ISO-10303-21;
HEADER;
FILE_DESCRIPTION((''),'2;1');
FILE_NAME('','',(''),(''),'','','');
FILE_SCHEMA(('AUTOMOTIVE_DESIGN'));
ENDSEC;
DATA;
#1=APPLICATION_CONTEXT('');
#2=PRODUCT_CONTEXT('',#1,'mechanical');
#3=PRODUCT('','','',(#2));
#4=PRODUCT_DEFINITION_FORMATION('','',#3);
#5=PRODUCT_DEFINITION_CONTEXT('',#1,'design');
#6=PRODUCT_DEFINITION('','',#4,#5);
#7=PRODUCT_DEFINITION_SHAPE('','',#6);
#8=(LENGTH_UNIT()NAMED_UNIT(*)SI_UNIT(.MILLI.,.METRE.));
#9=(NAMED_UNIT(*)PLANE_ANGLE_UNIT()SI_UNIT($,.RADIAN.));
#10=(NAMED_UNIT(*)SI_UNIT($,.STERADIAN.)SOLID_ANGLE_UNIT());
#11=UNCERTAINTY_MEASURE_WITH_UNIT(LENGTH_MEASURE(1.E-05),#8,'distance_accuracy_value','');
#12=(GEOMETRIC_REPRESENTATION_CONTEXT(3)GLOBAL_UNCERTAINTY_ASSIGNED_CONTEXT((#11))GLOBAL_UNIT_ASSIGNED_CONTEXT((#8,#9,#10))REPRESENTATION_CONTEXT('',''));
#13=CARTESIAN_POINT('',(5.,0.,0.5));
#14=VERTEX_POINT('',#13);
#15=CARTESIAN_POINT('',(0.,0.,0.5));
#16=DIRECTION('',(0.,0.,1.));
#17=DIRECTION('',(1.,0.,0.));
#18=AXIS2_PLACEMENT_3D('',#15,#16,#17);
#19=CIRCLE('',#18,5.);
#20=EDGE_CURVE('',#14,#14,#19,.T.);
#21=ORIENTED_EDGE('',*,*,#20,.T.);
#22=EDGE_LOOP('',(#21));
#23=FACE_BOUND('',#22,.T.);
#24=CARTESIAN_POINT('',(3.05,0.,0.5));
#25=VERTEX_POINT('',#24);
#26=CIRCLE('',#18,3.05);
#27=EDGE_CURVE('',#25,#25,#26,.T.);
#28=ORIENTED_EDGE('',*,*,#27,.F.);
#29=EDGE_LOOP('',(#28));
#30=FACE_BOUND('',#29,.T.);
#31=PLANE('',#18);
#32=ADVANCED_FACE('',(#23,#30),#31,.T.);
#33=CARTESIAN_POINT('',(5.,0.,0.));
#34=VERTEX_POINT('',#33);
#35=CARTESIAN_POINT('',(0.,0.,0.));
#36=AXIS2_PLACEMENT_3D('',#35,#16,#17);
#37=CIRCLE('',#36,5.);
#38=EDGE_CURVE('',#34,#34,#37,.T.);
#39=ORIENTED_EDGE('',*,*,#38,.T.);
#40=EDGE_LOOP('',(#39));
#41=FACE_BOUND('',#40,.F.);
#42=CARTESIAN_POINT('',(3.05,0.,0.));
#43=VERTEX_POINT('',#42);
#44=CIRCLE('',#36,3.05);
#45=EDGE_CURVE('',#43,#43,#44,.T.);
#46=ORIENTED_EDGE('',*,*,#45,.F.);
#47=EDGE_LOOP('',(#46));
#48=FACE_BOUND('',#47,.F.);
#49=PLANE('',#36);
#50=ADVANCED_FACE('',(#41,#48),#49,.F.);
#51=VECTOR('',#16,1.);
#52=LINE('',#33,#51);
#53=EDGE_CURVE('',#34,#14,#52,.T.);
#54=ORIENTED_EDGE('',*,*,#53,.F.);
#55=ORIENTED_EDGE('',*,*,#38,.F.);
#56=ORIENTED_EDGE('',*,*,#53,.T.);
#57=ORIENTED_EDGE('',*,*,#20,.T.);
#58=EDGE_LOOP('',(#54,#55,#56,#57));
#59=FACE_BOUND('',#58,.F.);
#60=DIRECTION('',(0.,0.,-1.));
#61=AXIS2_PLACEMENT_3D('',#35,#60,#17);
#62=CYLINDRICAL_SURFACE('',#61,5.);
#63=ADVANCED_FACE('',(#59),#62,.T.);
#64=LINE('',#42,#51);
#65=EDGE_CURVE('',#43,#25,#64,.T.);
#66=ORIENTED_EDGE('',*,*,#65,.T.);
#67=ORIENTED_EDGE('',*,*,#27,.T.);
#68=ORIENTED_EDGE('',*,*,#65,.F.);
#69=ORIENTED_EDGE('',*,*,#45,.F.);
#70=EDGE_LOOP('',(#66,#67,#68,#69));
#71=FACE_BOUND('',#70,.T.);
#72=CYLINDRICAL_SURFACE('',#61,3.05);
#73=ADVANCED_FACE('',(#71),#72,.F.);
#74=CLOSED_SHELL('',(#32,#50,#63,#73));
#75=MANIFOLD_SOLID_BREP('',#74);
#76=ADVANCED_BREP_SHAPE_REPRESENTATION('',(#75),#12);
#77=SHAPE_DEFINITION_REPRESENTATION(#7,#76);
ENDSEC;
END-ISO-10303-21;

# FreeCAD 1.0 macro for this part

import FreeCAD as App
import Part
import Sketcher

V = App.Vector
Q = App.Units.Quantity

doc = App.newDocument("Part")
body = doc.addObject("PartDesign::Body", "Body")

# Sketch on XY plane
sketch1 = doc.addObject("Sketcher::SketchObject", "Sketch")
body.addObject(sketch1)
sketch1.AttachmentSupport = (doc.XY_Plane, [""])
sketch1.MapMode = "FlatFace"
sketch1.addGeometry([
    Part.Circle(V(0, 0, 0), V(0, 0, 1), 5),
    Part.Circle(V(0, 0, 0), V(0, 0, 1), 3.05),
], False)
sketch1.addConstraint([
    Sketcher.Constraint("Coincident", 0, 3, -1, 1),
    Sketcher.Constraint("Coincident", 1, 3, -1, 1),
    Sketcher.Constraint("Diameter", 0, Q("10 mm")),
    Sketcher.Constraint("Diameter", 1, Q("6.1 mm")),
])
pad1 = doc.addObject("PartDesign::Pad", "Pad")
body.addObject(pad1)
pad1.Profile = sketch1
pad1.Length = 0.5

doc.recompute()
